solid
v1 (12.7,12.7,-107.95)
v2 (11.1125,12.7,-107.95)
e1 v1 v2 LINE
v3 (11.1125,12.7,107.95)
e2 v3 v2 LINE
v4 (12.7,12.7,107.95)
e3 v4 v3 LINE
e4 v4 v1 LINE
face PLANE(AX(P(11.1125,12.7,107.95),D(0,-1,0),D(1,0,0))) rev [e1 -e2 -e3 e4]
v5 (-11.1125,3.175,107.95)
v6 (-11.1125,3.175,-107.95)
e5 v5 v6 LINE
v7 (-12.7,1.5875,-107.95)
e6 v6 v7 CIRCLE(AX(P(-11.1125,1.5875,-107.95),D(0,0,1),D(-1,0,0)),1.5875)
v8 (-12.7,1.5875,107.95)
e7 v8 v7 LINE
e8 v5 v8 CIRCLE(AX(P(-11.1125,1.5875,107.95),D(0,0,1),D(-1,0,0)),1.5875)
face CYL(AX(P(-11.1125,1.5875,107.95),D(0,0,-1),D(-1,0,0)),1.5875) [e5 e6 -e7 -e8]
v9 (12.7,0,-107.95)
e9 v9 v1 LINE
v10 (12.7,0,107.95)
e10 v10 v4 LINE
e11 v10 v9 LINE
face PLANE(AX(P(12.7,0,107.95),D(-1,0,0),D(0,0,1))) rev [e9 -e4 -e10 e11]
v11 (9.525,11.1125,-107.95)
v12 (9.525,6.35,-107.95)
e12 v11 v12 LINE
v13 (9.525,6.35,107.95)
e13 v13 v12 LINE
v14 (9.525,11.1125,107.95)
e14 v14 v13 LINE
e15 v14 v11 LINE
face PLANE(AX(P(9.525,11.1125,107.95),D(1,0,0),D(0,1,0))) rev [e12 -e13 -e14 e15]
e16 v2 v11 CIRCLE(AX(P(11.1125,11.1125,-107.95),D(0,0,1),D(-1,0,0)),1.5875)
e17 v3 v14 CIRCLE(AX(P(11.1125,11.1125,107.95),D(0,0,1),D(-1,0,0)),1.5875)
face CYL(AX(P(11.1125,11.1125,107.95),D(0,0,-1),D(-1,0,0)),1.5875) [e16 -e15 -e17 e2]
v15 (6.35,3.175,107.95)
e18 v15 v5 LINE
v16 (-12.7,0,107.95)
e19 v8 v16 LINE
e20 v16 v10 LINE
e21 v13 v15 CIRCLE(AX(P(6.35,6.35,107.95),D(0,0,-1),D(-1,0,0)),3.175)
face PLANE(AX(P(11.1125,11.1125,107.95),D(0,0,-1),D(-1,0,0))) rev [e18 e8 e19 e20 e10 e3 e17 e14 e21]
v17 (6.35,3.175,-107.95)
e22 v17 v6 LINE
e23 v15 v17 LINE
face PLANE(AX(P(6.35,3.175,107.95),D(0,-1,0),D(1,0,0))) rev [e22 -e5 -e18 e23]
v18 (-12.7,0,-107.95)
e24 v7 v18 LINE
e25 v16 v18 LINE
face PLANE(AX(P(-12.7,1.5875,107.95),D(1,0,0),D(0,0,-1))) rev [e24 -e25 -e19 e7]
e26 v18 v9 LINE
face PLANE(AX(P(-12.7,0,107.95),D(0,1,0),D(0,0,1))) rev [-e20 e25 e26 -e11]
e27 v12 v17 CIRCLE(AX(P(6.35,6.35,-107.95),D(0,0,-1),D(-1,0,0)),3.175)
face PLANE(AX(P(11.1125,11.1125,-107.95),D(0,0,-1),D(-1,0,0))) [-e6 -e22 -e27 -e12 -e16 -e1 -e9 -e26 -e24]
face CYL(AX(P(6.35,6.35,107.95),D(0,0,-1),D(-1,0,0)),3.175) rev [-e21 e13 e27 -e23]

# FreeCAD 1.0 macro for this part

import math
import FreeCAD as App
import Part
import Sketcher

V = App.Vector
Q = App.Units.Quantity

doc = App.newDocument("Part")
body = doc.addObject("PartDesign::Body", "Body")

sketch1 = doc.addObject("Sketcher::SketchObject", "Sketch")
body.addObject(sketch1)
sketch1.AttachmentSupport = (doc.XY_Plane, [""])
sketch1.MapMode = "FlatFace"
sketch1.addGeometry(Part.LineSegment(V(-12.7, 0, 0), V(12.7, 0, 0)), False)
sketch1.addGeometry(Part.LineSegment(V(12.7, 0, 0), V(12.7, 12.7, 0)), False)
sketch1.addGeometry(Part.LineSegment(V(12.7, 12.7, 0), V(11.1, 12.7, 0)), False)
sketch1.addGeometry(Part.ArcOfCircle(Part.Circle(V(11.1, 11.1, 0), V(0, 0, 1), 1.6), math.radians(90), math.radians(180)), False)
sketch1.addGeometry(Part.LineSegment(V(9.5, 11.1, 0), V(9.5, 6.3, 0)), False)
sketch1.addGeometry(Part.ArcOfCircle(Part.Circle(V(6.3, 6.4, 0), V(0, 0, 1), 3.2), math.radians(-90), math.radians(0)), False)
sketch1.addGeometry(Part.LineSegment(V(6.3, 3.2, 0), V(-11.1, 3.2, 0)), False)
sketch1.addGeometry(Part.ArcOfCircle(Part.Circle(V(-11.1, 1.6, 0), V(0, 0, 1), 1.6), math.radians(90), math.radians(180)), False)
sketch1.addGeometry(Part.LineSegment(V(-12.7, 1.6, 0), V(-12.7, 0, 0)), False)
sketch1.addConstraint(Sketcher.Constraint("Coincident", 0, 2, 1, 1))
sketch1.addConstraint(Sketcher.Constraint("Coincident", 1, 2, 2, 1))
sketch1.addConstraint(Sketcher.Constraint("Tangent", 2, 2, 3, 1))
sketch1.addConstraint(Sketcher.Constraint("Tangent", 3, 2, 4, 1))
sketch1.addConstraint(Sketcher.Constraint("Tangent", 4, 2, 5, 2))
sketch1.addConstraint(Sketcher.Constraint("Tangent", 5, 1, 6, 1))
sketch1.addConstraint(Sketcher.Constraint("Tangent", 6, 2, 7, 1))
sketch1.addConstraint(Sketcher.Constraint("Tangent", 7, 2, 8, 1))
sketch1.addConstraint(Sketcher.Constraint("Coincident", 8, 2, 0, 1))
sketch1.addConstraint(Sketcher.Constraint("Horizontal", 0))
sketch1.addConstraint(Sketcher.Constraint("Vertical", 1))
sketch1.addConstraint(Sketcher.Constraint("Horizontal", 2))
sketch1.addConstraint(Sketcher.Constraint("Vertical", 4))
sketch1.addConstraint(Sketcher.Constraint("Horizontal", 6))
sketch1.addConstraint(Sketcher.Constraint("Vertical", 8))
sketch1.addConstraint(Sketcher.Constraint("Equal", 3, 7))
sketch1.addConstraint(Sketcher.Constraint("Symmetric", 0, 2, 8, 2, -1, 1))
sketch1.addConstraint(Sketcher.Constraint("Equal", 2, 8))
sketch1.addConstraint(Sketcher.Constraint("DistanceX", 0, 1, 0, 2, Q("1 in")))
sketch1.addConstraint(Sketcher.Constraint("DistanceY", 1, 1, 1, 2, Q("0.5 in")))
sketch1.addConstraint(Sketcher.Constraint("Radius", 3, Q("0.0625 in")))
sketch1.addConstraint(Sketcher.Constraint("Radius", 5, Q("0.125 in")))
sketch1.addConstraint(Sketcher.Constraint("DistanceX", 2, 2, 2, 1, Q("0.0625 in")))
pad1 = doc.addObject("PartDesign::Pad", "Pad")
body.addObject(pad1)
pad1.Profile = sketch1
pad1.Length = Q("8.5 in")
pad1.Midplane = True

doc.recompute()
